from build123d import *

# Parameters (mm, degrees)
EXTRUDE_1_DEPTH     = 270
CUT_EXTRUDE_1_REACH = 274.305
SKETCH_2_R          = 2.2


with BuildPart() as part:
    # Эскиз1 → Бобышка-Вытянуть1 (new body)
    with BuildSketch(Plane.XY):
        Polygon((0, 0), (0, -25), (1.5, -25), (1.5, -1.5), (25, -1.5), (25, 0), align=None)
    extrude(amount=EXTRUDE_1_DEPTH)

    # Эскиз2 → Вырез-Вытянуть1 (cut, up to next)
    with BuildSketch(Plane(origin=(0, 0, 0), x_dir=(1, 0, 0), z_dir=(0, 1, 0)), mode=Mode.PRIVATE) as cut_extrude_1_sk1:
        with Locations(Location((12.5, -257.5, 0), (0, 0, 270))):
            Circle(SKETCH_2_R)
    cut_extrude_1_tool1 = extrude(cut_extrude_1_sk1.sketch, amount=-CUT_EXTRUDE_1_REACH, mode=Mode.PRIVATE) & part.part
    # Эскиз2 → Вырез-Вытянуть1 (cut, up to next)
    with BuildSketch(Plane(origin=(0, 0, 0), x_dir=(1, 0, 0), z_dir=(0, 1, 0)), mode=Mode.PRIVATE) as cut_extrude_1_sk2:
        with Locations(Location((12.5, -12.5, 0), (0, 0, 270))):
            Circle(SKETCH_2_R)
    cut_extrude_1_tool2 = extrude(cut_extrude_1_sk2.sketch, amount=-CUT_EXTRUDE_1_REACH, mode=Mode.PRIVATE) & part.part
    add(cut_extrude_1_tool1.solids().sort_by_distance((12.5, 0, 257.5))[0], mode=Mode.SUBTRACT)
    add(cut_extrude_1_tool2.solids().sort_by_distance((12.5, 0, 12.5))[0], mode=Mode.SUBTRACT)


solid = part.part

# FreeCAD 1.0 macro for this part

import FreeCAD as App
import Part
import Sketcher


def add_polygon(sketch, points):
    """Adds a closed chain of lines whose ends are joined by coincident constraints."""
    first, n = sketch.GeometryCount, len(points)
    for a, b in zip(points, points[1:] + points[:1]):
        sketch.addGeometry(Part.LineSegment(App.Vector(*a, 0), App.Vector(*b, 0)), False)
    for i in range(n):
        sketch.addConstraint(Sketcher.Constraint("Coincident", first + i, 2, first + (i + 1) % n, 1))

doc = App.newDocument("Part")
body = doc.addObject("PartDesign::Body", "Body")

# Sketch on XY plane
sketch1 = body.newObject("Sketcher::SketchObject", "Sketch")
sketch1.AttachmentSupport = (doc.getObject("XY_Plane"), [""])
sketch1.MapMode = "FlatFace"
add_polygon(sketch1, [(0, 0), (0, -25), (1.5, -25), (1.5, -1.5), (25, -1.5), (25, 0)])  # lines 0-5
sketch1.addConstraint([
    Sketcher.Constraint("Vertical", 0),
    Sketcher.Constraint("Horizontal", 1),
    Sketcher.Constraint("Vertical", 2),
    Sketcher.Constraint("Horizontal", 3),
    Sketcher.Constraint("Vertical", 4),
    Sketcher.Constraint("Horizontal", 5),
    Sketcher.Constraint("Coincident", 5, 2, -1, 1),
    Sketcher.Constraint("Equal", 5, 0),
    Sketcher.Constraint("Equal", 3, 2),
    Sketcher.Constraint("DistanceX", 5, 2, 5, 1, 25.0),
    Sketcher.Constraint("DistanceX", 1, 1, 1, 2, 1.5),
])
pad1 = body.newObject("PartDesign::Pad", "Pad")
pad1.Profile = sketch1
pad1.Length = 270

# Sketch on XZ plane
sketch2 = body.newObject("Sketcher::SketchObject", "Sketch001")
sketch2.AttachmentSupport = (doc.getObject("XZ_Plane"), [""])
sketch2.MapMode = "FlatFace"
sketch2.addGeometry(Part.Circle(App.Vector(12.5, 257.5, 0), App.Vector(0, 0, 1), 2.2), False)
sketch2.addConstraint([
    Sketcher.Constraint("Diameter", 0, 4.4),
    Sketcher.Constraint("DistanceX", -1, 1, 0, 3, 12.5),
    Sketcher.Constraint("DistanceY", -1, 1, 0, 3, 257.5),
])
pocket1 = body.newObject("PartDesign::Pocket", "Pocket")
pocket1.Profile = sketch2
pocket1.Type = "UpToFirst"
pocket1.Reversed = True

# Sketch on XZ plane
sketch3 = body.newObject("Sketcher::SketchObject", "Sketch002")
sketch3.AttachmentSupport = (doc.getObject("XZ_Plane"), [""])
sketch3.MapMode = "FlatFace"
sketch3.addGeometry(Part.Circle(App.Vector(12.5, 12.5, 0), App.Vector(0, 0, 1), 2.2), False)
sketch3.addConstraint([
    Sketcher.Constraint("Diameter", 0, 4.4),
    Sketcher.Constraint("DistanceX", -1, 1, 0, 3, 12.5),
    Sketcher.Constraint("DistanceY", -1, 1, 0, 3, 12.5),
])
pocket2 = body.newObject("PartDesign::Pocket", "Pocket001")
pocket2.Profile = sketch3
pocket2.Type = "UpToFirst"
pocket2.Reversed = True

doc.recompute()
